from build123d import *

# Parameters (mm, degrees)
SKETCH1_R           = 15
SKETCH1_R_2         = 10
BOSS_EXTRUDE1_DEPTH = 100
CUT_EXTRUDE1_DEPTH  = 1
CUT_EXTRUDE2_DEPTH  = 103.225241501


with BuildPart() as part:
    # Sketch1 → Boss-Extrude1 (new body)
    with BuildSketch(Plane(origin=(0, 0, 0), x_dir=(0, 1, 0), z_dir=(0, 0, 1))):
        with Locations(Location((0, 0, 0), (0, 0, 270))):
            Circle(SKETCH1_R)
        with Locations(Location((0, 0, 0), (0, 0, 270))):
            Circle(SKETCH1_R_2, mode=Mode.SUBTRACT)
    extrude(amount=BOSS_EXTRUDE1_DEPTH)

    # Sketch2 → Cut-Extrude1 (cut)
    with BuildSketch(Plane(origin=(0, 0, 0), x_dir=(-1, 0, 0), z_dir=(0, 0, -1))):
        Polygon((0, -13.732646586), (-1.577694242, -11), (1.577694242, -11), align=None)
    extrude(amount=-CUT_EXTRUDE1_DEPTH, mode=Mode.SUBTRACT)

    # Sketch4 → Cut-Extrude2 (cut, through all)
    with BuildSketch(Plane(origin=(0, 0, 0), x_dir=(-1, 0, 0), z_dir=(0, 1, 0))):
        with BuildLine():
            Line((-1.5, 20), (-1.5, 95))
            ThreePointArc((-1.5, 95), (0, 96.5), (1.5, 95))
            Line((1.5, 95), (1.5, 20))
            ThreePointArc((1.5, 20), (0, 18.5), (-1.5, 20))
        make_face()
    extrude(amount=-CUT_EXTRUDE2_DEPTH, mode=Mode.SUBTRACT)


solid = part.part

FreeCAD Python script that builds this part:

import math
import FreeCAD as App
import Part
import Sketcher

V = App.Vector
Q = App.Units.Quantity


def add_polygon(sketch, points):
    """Adds a closed chain of lines whose ends are joined by coincident constraints."""
    first, n = sketch.GeometryCount, len(points)
    for a, b in zip(points, points[1:] + points[:1]):
        sketch.addGeometry(Part.LineSegment(App.Vector(*a, 0), App.Vector(*b, 0)), False)
    for i in range(n):
        sketch.addConstraint(Sketcher.Constraint("Coincident", first + i, 2, first + (i + 1) % n, 1))

doc = App.newDocument("Part")
body = doc.addObject("PartDesign::Body", "Body")

# Sketch on XY plane
sketch1 = body.newObject("Sketcher::SketchObject", "Sketch")
sketch1.AttachmentSupport = (doc.getObject("XY_Plane"), [""])
sketch1.MapMode = "FlatFace"
sketch1.addGeometry(Part.Circle(V(0, 0, 0), V(0, 0, 1), 15), False)
sketch1.addGeometry(Part.Circle(V(0, 0, 0), V(0, 0, 1), 10), False)
sketch1.addConstraint(Sketcher.Constraint("Coincident", 0, 3, -1, 1))
sketch1.addConstraint(Sketcher.Constraint("Coincident", 1, 3, -1, 1))
sketch1.addConstraint(Sketcher.Constraint("Diameter", 0, Q("30 mm")))
sketch1.addConstraint(Sketcher.Constraint("Diameter", 1, Q("20 mm")))
pad1 = body.newObject("PartDesign::Pad", "Pad")
pad1.Profile = sketch1
pad1.Length = 100

# Sketch on XY plane
sketch2 = body.newObject("Sketcher::SketchObject", "Sketch001")
sketch2.AttachmentSupport = (doc.getObject("XY_Plane"), [""])
sketch2.MapMode = "FlatFace"
add_polygon(sketch2, [(1.6, -11), (0, -13.7), (-1.6, -11)])  # lines 0-2
sketch2.addConstraint(Sketcher.Constraint("Horizontal", 2))
sketch2.addConstraint(Sketcher.Constraint("PointOnObject", 0, 2, -2))
sketch2.addConstraint(Sketcher.Constraint("Equal", 0, 1))
sketch2.addConstraint(Sketcher.Constraint("Angle", 0, Q("-120 deg")))
sketch2.addConstraint(Sketcher.Constraint("DistanceY", 1, 2, -1, 1, Q("11 mm")))
sketch2.addConstraint(Sketcher.Constraint("DistanceX", 2, 1, 2, 2, Q("3.155388 mm")))
pocket1 = body.newObject("PartDesign::Pocket", "Pocket")
pocket1.Profile = sketch2
pocket1.Length = 1
pocket1.Reversed = True

# Sketch on XZ plane
sketch3 = body.newObject("Sketcher::SketchObject", "Sketch002")
sketch3.AttachmentSupport = (doc.getObject("XZ_Plane"), [""])
sketch3.MapMode = "FlatFace"
sketch3.addGeometry(Part.LineSegment(V(1.5, 95, 0), V(1.5, 20, 0)), False)
sketch3.addGeometry(Part.ArcOfCircle(Part.Circle(V(0, 20, 0), V(0, 0, 1), 1.5), math.radians(180), math.radians(360)), False)
sketch3.addGeometry(Part.LineSegment(V(-1.5, 20, 0), V(-1.5, 95, 0)), False)
sketch3.addGeometry(Part.ArcOfCircle(Part.Circle(V(0, 95, 0), V(0, 0, 1), 1.5), math.radians(0), math.radians(180)), False)
sketch3.addConstraint(Sketcher.Constraint("Tangent", 0, 2, 1, 2))
sketch3.addConstraint(Sketcher.Constraint("Tangent", 1, 1, 2, 1))
sketch3.addConstraint(Sketcher.Constraint("Tangent", 2, 2, 3, 2))
sketch3.addConstraint(Sketcher.Constraint("Tangent", 3, 1, 0, 1))
sketch3.addConstraint(Sketcher.Constraint("Vertical", 0))
sketch3.addConstraint(Sketcher.Constraint("Vertical", 2))
sketch3.addConstraint(Sketcher.Constraint("PointOnObject", 1, 3, -2))
sketch3.addConstraint(Sketcher.Constraint("Radius", 1, Q("1.5 mm")))
sketch3.addConstraint(Sketcher.Constraint("DistanceY", 0, 2, 0, 1, Q("75 mm")))
sketch3.addConstraint(Sketcher.Constraint("DistanceY", -1, 1, 1, 3, Q("20 mm")))
pocket2 = body.newObject("PartDesign::Pocket", "Pocket001")
pocket2.Profile = sketch3
pocket2.Type = "ThroughAll"
pocket2.Reversed = True

doc.recompute()
